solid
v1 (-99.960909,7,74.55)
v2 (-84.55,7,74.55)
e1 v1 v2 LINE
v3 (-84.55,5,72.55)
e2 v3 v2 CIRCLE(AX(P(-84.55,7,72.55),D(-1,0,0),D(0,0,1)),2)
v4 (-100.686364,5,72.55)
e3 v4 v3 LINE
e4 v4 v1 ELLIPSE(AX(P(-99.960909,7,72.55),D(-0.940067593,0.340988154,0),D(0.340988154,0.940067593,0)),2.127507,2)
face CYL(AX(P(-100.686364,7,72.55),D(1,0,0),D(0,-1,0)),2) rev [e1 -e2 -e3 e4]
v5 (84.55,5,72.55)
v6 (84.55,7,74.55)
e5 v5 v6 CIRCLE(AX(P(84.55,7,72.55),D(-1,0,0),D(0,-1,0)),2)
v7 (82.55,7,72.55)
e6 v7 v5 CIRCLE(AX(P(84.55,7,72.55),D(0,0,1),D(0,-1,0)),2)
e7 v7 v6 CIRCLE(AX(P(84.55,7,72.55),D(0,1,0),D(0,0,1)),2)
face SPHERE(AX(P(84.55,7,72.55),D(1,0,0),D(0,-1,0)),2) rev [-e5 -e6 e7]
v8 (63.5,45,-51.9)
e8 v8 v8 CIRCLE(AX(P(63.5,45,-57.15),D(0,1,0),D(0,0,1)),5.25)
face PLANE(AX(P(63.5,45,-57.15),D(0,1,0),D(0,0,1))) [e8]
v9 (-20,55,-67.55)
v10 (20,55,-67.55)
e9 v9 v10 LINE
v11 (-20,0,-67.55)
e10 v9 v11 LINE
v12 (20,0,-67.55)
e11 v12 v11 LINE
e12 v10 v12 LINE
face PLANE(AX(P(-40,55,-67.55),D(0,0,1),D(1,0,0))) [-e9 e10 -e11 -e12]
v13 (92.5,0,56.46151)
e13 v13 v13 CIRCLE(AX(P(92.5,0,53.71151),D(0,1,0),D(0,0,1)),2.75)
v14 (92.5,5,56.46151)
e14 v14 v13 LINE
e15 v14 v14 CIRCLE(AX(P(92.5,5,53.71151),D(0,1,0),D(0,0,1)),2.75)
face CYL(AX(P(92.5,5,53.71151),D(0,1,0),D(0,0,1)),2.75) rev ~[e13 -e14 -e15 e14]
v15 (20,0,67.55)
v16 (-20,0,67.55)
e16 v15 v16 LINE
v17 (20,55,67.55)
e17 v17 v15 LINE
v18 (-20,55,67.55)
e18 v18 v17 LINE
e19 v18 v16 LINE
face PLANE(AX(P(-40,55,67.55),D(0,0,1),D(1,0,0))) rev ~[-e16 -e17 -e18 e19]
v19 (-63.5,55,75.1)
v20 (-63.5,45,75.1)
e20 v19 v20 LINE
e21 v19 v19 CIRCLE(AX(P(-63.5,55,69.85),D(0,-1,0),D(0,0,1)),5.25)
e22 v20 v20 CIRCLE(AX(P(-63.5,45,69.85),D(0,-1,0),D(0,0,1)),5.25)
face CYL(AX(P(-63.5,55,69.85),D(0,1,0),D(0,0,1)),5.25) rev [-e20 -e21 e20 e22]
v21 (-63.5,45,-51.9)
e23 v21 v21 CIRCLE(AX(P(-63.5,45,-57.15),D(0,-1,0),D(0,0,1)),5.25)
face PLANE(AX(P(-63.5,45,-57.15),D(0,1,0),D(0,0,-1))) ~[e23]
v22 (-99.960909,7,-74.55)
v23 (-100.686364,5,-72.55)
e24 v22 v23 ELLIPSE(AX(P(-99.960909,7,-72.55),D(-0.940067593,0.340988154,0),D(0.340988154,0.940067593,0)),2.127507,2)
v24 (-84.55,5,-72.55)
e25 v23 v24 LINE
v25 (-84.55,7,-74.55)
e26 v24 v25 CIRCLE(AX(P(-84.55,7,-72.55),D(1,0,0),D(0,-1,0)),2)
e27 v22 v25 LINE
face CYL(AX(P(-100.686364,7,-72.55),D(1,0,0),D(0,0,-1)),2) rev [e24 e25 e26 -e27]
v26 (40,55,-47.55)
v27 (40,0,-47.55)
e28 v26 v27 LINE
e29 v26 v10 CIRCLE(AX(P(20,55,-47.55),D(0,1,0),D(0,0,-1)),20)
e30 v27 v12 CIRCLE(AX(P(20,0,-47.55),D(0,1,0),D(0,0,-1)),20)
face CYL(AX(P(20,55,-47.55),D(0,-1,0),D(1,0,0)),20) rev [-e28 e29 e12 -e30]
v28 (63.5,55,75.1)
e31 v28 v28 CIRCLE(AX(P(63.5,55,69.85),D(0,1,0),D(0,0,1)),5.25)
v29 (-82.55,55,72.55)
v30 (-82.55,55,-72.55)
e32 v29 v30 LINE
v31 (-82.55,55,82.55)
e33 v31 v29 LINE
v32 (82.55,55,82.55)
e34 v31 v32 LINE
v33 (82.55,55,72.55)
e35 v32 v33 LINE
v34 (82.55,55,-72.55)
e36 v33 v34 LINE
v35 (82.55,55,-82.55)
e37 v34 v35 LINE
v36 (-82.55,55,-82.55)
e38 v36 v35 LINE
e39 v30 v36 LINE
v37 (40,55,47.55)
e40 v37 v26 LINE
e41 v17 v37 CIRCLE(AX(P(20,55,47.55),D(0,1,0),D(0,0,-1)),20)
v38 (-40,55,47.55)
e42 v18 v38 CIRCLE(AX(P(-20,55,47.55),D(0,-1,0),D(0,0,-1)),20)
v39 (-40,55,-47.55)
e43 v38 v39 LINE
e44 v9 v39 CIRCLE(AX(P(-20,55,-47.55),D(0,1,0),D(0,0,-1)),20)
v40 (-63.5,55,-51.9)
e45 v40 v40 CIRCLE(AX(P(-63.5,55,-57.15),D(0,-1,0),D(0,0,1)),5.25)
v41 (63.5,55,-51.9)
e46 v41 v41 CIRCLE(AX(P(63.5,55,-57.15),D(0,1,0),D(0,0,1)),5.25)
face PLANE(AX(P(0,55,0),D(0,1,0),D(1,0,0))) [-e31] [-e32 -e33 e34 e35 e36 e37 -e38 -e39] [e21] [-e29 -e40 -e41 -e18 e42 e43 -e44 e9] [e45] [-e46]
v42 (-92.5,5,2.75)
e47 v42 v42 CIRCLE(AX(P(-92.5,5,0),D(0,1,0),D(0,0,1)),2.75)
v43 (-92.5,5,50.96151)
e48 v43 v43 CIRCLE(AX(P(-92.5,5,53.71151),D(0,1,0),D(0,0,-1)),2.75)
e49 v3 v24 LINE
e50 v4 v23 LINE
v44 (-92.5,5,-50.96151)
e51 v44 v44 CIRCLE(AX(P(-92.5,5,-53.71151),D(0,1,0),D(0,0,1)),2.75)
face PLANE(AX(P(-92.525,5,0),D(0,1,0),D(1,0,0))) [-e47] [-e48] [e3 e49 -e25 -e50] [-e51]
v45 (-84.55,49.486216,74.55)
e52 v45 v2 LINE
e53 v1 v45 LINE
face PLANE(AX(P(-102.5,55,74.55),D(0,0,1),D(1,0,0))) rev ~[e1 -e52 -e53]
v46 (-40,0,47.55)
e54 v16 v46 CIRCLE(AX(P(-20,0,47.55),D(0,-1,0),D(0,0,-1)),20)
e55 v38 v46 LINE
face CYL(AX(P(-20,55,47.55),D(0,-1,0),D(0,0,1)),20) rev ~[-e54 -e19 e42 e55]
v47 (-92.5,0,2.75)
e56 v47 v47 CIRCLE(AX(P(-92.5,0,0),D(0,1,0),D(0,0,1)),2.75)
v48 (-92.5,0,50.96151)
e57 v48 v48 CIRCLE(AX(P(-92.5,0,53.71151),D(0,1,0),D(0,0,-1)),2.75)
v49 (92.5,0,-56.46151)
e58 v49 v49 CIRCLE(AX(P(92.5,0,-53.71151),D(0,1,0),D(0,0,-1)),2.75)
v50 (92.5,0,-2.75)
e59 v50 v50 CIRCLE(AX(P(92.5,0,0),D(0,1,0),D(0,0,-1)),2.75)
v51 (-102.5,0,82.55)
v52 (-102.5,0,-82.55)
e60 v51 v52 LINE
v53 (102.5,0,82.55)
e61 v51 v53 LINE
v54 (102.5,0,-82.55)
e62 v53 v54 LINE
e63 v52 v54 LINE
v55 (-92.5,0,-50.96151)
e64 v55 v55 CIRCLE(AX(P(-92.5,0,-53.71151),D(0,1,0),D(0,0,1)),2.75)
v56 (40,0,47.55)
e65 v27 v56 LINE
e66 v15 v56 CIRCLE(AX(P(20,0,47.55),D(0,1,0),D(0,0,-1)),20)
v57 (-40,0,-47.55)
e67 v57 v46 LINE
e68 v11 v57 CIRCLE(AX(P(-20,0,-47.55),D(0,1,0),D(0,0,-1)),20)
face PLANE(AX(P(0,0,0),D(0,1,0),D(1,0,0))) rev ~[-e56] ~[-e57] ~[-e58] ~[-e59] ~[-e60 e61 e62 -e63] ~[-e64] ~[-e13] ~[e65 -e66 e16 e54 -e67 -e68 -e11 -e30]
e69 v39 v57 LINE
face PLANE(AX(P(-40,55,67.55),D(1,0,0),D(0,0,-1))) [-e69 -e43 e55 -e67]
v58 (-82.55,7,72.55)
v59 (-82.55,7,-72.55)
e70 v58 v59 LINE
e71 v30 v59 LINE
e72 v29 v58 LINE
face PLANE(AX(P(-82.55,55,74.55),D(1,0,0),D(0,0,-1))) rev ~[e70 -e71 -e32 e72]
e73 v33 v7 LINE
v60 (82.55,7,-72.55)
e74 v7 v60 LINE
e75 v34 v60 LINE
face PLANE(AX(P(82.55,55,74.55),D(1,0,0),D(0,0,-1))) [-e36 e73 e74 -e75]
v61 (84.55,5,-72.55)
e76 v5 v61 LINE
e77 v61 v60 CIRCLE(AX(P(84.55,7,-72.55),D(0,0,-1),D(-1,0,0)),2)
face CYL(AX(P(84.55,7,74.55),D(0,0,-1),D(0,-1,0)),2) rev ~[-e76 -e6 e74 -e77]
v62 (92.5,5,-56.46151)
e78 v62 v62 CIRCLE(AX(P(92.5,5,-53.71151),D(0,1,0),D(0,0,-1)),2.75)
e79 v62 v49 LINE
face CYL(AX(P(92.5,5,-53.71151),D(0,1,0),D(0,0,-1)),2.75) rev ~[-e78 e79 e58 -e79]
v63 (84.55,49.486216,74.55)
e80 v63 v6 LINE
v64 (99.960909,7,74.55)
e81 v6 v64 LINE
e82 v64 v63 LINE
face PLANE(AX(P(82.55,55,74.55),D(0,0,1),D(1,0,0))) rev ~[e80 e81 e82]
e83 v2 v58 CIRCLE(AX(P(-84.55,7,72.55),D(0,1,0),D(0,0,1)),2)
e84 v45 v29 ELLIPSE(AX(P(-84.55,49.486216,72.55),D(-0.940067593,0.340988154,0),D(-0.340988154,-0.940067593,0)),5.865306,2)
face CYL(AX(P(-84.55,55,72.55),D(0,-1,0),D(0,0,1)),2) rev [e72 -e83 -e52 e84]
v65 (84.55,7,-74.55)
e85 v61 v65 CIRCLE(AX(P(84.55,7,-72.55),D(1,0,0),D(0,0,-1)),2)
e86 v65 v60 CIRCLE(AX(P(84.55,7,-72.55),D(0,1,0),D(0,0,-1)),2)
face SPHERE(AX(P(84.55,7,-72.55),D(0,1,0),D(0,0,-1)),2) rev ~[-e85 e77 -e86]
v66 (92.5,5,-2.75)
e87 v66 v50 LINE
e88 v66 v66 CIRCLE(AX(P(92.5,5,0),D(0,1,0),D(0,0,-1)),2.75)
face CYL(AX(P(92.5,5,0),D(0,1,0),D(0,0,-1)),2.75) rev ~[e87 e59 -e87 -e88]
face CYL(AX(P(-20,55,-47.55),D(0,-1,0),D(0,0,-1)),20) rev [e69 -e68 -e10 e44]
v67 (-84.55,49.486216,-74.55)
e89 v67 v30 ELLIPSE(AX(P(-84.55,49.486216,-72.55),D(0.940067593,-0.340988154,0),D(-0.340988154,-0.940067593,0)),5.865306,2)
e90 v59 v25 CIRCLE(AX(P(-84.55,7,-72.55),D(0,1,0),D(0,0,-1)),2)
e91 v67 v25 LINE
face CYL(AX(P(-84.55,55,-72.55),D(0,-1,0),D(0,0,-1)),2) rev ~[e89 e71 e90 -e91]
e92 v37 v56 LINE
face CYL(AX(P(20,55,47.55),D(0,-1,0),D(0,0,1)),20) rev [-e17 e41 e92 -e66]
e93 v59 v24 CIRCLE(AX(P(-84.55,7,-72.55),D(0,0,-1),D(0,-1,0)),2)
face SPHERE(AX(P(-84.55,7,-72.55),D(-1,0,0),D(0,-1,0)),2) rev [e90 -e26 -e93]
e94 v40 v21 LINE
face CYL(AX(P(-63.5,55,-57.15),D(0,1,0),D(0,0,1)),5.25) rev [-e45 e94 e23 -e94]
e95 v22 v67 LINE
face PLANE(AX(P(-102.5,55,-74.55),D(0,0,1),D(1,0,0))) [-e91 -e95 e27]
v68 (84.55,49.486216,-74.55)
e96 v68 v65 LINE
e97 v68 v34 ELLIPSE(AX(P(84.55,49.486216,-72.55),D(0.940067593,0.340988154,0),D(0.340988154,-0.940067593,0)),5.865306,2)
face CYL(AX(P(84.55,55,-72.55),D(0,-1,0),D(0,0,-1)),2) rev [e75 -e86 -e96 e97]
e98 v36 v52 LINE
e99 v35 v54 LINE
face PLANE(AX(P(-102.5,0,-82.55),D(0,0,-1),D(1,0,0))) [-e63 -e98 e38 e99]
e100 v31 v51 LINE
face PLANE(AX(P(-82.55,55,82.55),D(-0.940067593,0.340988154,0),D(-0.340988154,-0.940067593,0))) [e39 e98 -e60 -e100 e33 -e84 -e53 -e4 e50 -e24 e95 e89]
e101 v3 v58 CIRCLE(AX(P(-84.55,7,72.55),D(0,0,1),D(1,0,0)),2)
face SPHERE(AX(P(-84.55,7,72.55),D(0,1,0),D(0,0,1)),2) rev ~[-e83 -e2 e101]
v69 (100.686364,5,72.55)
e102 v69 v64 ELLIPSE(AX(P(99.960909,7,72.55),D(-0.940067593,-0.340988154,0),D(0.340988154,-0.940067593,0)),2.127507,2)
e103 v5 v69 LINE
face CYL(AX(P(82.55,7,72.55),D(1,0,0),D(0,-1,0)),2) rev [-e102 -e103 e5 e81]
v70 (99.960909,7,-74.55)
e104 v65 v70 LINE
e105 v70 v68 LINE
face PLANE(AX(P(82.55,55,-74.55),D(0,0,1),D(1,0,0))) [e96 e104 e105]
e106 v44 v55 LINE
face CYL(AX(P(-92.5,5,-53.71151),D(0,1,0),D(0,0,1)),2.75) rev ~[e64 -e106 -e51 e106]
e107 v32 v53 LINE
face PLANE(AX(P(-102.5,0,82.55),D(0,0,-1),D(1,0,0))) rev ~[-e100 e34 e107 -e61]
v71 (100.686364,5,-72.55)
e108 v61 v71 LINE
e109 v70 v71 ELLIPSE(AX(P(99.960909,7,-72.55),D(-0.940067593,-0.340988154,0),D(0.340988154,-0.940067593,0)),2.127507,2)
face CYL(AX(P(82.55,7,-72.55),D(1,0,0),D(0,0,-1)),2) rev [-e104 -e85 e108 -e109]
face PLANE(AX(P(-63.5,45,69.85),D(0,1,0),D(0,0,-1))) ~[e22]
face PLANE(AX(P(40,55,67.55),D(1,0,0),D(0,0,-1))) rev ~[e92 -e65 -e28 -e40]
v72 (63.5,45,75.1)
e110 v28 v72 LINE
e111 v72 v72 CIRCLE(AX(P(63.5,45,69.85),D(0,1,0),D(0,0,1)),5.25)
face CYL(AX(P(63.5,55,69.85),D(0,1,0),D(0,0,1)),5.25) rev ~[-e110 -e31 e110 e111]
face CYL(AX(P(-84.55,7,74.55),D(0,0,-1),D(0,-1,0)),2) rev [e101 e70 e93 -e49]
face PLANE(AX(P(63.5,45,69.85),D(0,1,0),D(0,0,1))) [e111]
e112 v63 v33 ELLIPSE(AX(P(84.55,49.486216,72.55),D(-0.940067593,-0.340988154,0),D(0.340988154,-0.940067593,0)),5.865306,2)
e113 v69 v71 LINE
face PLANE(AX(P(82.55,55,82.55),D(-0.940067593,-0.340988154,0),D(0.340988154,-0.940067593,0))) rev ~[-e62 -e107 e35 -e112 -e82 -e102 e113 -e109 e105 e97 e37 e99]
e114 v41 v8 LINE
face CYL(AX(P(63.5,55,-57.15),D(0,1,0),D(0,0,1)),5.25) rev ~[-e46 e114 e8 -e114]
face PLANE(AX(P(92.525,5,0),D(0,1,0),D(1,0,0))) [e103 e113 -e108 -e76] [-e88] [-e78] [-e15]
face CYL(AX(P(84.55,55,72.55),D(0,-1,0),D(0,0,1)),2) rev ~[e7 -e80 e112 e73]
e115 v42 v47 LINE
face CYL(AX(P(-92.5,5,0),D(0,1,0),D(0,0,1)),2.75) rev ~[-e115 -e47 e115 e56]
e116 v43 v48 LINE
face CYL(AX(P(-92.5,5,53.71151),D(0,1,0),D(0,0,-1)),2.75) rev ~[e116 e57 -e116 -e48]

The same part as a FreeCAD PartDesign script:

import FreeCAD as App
import Part
import Sketcher
from FreeCAD import Vector
Q = App.Units.Quantity


def edges_at(feature, points):
    """Names of the edges that pass closest to the given points."""
    edges = feature.Shape.Edges
    near = lambda p: min(range(len(edges)), key=lambda i: edges[i].distToShape(Part.Vertex(*p))[0])
    return sorted({f"Edge{near(p) + 1}" for p in points})


def add_polygon(sketch, points):
    """Adds a closed chain of lines whose ends are joined by coincident constraints."""
    first, n = sketch.GeometryCount, len(points)
    for a, b in zip(points, points[1:] + points[:1]):
        sketch.addGeometry(Part.LineSegment(App.Vector(*a, 0), App.Vector(*b, 0)), False)
    for i in range(n):
        sketch.addConstraint(Sketcher.Constraint("Coincident", first + i, 2, first + (i + 1) % n, 1))

doc = App.newDocument("Part")
body = doc.addObject("PartDesign::Body", "Body")

# Sketch on XZ plane
sketch1 = body.newObject("Sketcher::SketchObject", "Sketch")
sketch1.AttachmentSupport = (doc.getObject("XZ_Plane"), [""])
sketch1.MapMode = "FlatFace"
add_polygon(sketch1, [(-102, -83), (-102, 83), (102, 83), (102, -83)])  # lines 0-3
sketch1.addConstraint([
    Sketcher.Constraint("Vertical", 0),
    Sketcher.Constraint("Horizontal", 1),
    Sketcher.Constraint("Vertical", 2),
    Sketcher.Constraint("Horizontal", 3),
    Sketcher.Constraint("Symmetric", 0, 2, 2, 2, -1, 1),
    Sketcher.Constraint("DistanceX", 1, 1, 1, 2, Q("205 mm")),
    Sketcher.Constraint("DistanceY", 0, 1, 0, 2, Q("165.1 mm")),
])
pad1 = body.newObject("PartDesign::Pad", "Pad")
pad1.Profile = sketch1
pad1.Length = 55
pad1.Reversed = True

# Sketch on XY plane
sketch2 = body.newObject("Sketcher::SketchObject", "Sketch001")
sketch2.AttachmentSupport = (doc.getObject("XY_Plane"), [""])
sketch2.MapMode = "FlatFace"
sketch2.AttachmentOffset = App.Placement(Vector(0, 0, 82.55), App.Rotation())
add_polygon(sketch2, [(83, 55), (102, 0), (102, 55)])  # lines 0-2
sketch2.addConstraint([
    Sketcher.Constraint("Vertical", 1),
    Sketcher.Constraint("Horizontal", 2),
    Sketcher.Constraint("PointOnObject", 0, 2, -1),
    Sketcher.Constraint("DistanceY", 1, 1, 1, 2, Q("55 mm")),
    Sketcher.Constraint("DistanceX", 2, 2, 2, 1, Q("19.95 mm")),
    Sketcher.Constraint("DistanceX", -1, 1, 0, 2, Q("102.5 mm")),
])
pocket1 = body.newObject("PartDesign::Pocket", "Pocket")
pocket1.Profile = sketch2
pocket1.Type = "UpToFirst"

# Sketch on XY plane
sketch3 = body.newObject("Sketcher::SketchObject", "Sketch002")
sketch3.AttachmentSupport = (doc.getObject("XY_Plane"), [""])
sketch3.MapMode = "FlatFace"
sketch3.AttachmentOffset = App.Placement(Vector(0, 0, 82.55), App.Rotation())
add_polygon(sketch3, [(-102, 0), (-83, 55), (-102, 55)])  # lines 0-2
sketch3.addConstraint([
    Sketcher.Constraint("Horizontal", 1),
    Sketcher.Constraint("Vertical", 2),
    Sketcher.Constraint("PointOnObject", 2, 2, -1),
    Sketcher.Constraint("DistanceY", 2, 2, 2, 1, Q("55 mm")),
    Sketcher.Constraint("DistanceX", 1, 2, 1, 1, Q("19.95 mm")),
    Sketcher.Constraint("DistanceX", 1, 2, -1, 1, Q("102.5 mm")),
])
pocket2 = body.newObject("PartDesign::Pocket", "Pocket001")
pocket2.Profile = sketch3
pocket2.Type = "UpToFirst"

# Sketch on XZ plane
sketch4 = body.newObject("Sketcher::SketchObject", "Sketch003")
sketch4.AttachmentSupport = (doc.getObject("XZ_Plane"), [""])
sketch4.MapMode = "FlatFace"
sketch4.AttachmentOffset = App.Placement(Vector(0, 0, -55), App.Rotation())
add_polygon(sketch4, [(-102, -75), (-102, 75), (-83, 75), (-83, -75)])  # lines 0-3
add_polygon(sketch4, [(83, -75), (83, 75), (102, 75), (102, -75)])  # lines 4-7
sketch4.addConstraint([
    Sketcher.Constraint("Vertical", 0),
    Sketcher.Constraint("Horizontal", 1),
    Sketcher.Constraint("Vertical", 2),
    Sketcher.Constraint("Horizontal", 3),
    Sketcher.Constraint("Vertical", 4),
    Sketcher.Constraint("Horizontal", 5),
    Sketcher.Constraint("Vertical", 6),
    Sketcher.Constraint("Horizontal", 7),
    Sketcher.Constraint("Symmetric", 2, 2, 4, 2, -1, 1),
    Sketcher.Constraint("Symmetric", 0, 2, 6, 2, -1, 1),
    Sketcher.Constraint("Horizontal", 1, 2, 4, 2),
    Sketcher.Constraint("DistanceY", 0, 1, 0, 2, Q("149.1 mm")),
    Sketcher.Constraint("DistanceX", 0, 2, 5, 2, Q("205 mm")),
    Sketcher.Constraint("DistanceX", 1, 1, 1, 2, Q("19.95 mm")),
])
pocket3 = body.newObject("PartDesign::Pocket", "Pocket002")
pocket3.Profile = sketch4
pocket3.Length = 50
pocket3.Reversed = True

# Sketch on XZ plane
sketch5 = body.newObject("Sketcher::SketchObject", "Sketch004")
sketch5.AttachmentSupport = (doc.getObject("XZ_Plane"), [""])
sketch5.MapMode = "FlatFace"
sketch5.AttachmentOffset = App.Placement(Vector(0, 0, -5), App.Rotation())
sketch5.addGeometry(Part.Circle(Vector(-92.5, -53.7, 0), Vector(0, 0, 1), 2.8), False)
sketch5.addConstraint([
    Sketcher.Constraint("Diameter", 0, Q("5.5 mm")),
    Sketcher.Constraint("DistanceX", 0, 3, -1, 1, Q("92.5 mm")),
    Sketcher.Constraint("DistanceY", 0, 3, -1, 1, Q("53.71151 mm")),
])
pocket4 = body.newObject("PartDesign::Pocket", "Pocket003")
pocket4.Profile = sketch5
pocket4.Type = "UpToFirst"
pocket4.Reversed = True

# Sketch on XZ plane
sketch6 = body.newObject("Sketcher::SketchObject", "Sketch005")
sketch6.AttachmentSupport = (doc.getObject("XZ_Plane"), [""])
sketch6.MapMode = "FlatFace"
sketch6.AttachmentOffset = App.Placement(Vector(0, 0, -5), App.Rotation())
sketch6.addGeometry(Part.Circle(Vector(-92.5, 0, 0), Vector(0, 0, 1), 2.8), False)
sketch6.addConstraint([
    Sketcher.Constraint("PointOnObject", 0, 3, -1),
    Sketcher.Constraint("Diameter", 0, Q("5.5 mm")),
    Sketcher.Constraint("DistanceX", 0, 3, -1, 1, Q("92.5 mm")),
])
pocket5 = body.newObject("PartDesign::Pocket", "Pocket004")
pocket5.Profile = sketch6
pocket5.Type = "UpToFirst"
pocket5.Reversed = True

# Sketch on XZ plane
sketch7 = body.newObject("Sketcher::SketchObject", "Sketch006")
sketch7.AttachmentSupport = (doc.getObject("XZ_Plane"), [""])
sketch7.MapMode = "FlatFace"
sketch7.AttachmentOffset = App.Placement(Vector(0, 0, -5), App.Rotation())
sketch7.addGeometry(Part.Circle(Vector(-92.5, 53.7, 0), Vector(0, 0, 1), 2.8), False)
sketch7.addConstraint([
    Sketcher.Constraint("Diameter", 0, Q("5.5 mm")),
    Sketcher.Constraint("DistanceX", 0, 3, -1, 1, Q("92.5 mm")),
    Sketcher.Constraint("DistanceY", -1, 1, 0, 3, Q("53.71151 mm")),
])
pocket6 = body.newObject("PartDesign::Pocket", "Pocket005")
pocket6.Profile = sketch7
pocket6.Type = "UpToFirst"
pocket6.Reversed = True

# Sketch on XZ plane
sketch8 = body.newObject("Sketcher::SketchObject", "Sketch007")
sketch8.AttachmentSupport = (doc.getObject("XZ_Plane"), [""])
sketch8.MapMode = "FlatFace"
sketch8.AttachmentOffset = App.Placement(Vector(0, 0, -5), App.Rotation())
sketch8.addGeometry(Part.Circle(Vector(92.5, 53.7, 0), Vector(0, 0, 1), 2.8), False)
sketch8.addConstraint([
    Sketcher.Constraint("Diameter", 0, Q("5.5 mm")),
    Sketcher.Constraint("DistanceX", -1, 1, 0, 3, Q("92.5 mm")),
    Sketcher.Constraint("DistanceY", -1, 1, 0, 3, Q("53.71151 mm")),
])
pocket7 = body.newObject("PartDesign::Pocket", "Pocket006")
pocket7.Profile = sketch8
pocket7.Type = "UpToFirst"
pocket7.Reversed = True

# Sketch on XZ plane
sketch9 = body.newObject("Sketcher::SketchObject", "Sketch008")
sketch9.AttachmentSupport = (doc.getObject("XZ_Plane"), [""])
sketch9.MapMode = "FlatFace"
sketch9.AttachmentOffset = App.Placement(Vector(0, 0, -5), App.Rotation())
sketch9.addGeometry(Part.Circle(Vector(92.5, 0, 0), Vector(0, 0, 1), 2.8), False)
sketch9.addConstraint([
    Sketcher.Constraint("PointOnObject", 0, 3, -1),
    Sketcher.Constraint("Diameter", 0, Q("5.5 mm")),
    Sketcher.Constraint("DistanceX", -1, 1, 0, 3, Q("92.5 mm")),
])
pocket8 = body.newObject("PartDesign::Pocket", "Pocket007")
pocket8.Profile = sketch9
pocket8.Type = "UpToFirst"
pocket8.Reversed = True

# Sketch on XZ plane
sketch10 = body.newObject("Sketcher::SketchObject", "Sketch009")
sketch10.AttachmentSupport = (doc.getObject("XZ_Plane"), [""])
sketch10.MapMode = "FlatFace"
sketch10.AttachmentOffset = App.Placement(Vector(0, 0, -5), App.Rotation())
sketch10.addGeometry(Part.Circle(Vector(92.5, -53.7, 0), Vector(0, 0, 1), 2.8), False)
sketch10.addConstraint([
    Sketcher.Constraint("Diameter", 0, Q("5.5 mm")),
    Sketcher.Constraint("DistanceX", -1, 1, 0, 3, Q("92.5 mm")),
    Sketcher.Constraint("DistanceY", 0, 3, -1, 1, Q("53.71151 mm")),
])
pocket9 = body.newObject("PartDesign::Pocket", "Pocket008")
pocket9.Profile = sketch10
pocket9.Type = "UpToFirst"
pocket9.Reversed = True
doc.recompute()

fillet = body.newObject("PartDesign::Fillet", "Fillet")
fillet.Base = (pocket9, edges_at(pocket9, [
    (-91.618, 5, -74.55),
    (-82.55, 30, 74.55),
    (-91.618, 5, 74.55),
    (-82.55, 5, 0),
    (-82.55, 30, -74.55),
    (91.618, 5, 74.55),
    (82.55, 30, -74.55),
    (91.618, 5, -74.55),
    (82.55, 5, 0),
    (82.55, 30, 74.55),
]))
fillet.Radius = 2

# Sketch on XZ plane
sketch11 = body.newObject("Sketcher::SketchObject", "Sketch010")
sketch11.AttachmentSupport = (doc.getObject("XZ_Plane"), [""])
sketch11.MapMode = "FlatFace"
sketch11.AttachmentOffset = App.Placement(Vector(0, 0, -55), App.Rotation())
sketch11.addGeometry([
    Part.Circle(Vector(64, 70, 0), Vector(0, 0, 1), 5),
    Part.Circle(Vector(64, -57, 0), Vector(0, 0, 1), 5),
], False)
sketch11.addConstraint([
    Sketcher.Constraint("Equal", 0, 1),
    Sketcher.Constraint("Vertical", 0, 3, 1, 3),
    Sketcher.Constraint("Diameter", 0, Q("10.5 mm")),
    Sketcher.Constraint("DistanceY", 1, 3, 0, 3, Q("127 mm")),
    Sketcher.Constraint("DistanceX", -1, 1, 0, 3, Q("63.5 mm")),
    Sketcher.Constraint("DistanceY", -1, 1, 0, 3, Q("69.85 mm")),
])
pocket10 = body.newObject("PartDesign::Pocket", "Pocket009")
pocket10.Profile = sketch11
pocket10.Length = 10
pocket10.Reversed = True
doc.recompute()

mirrored = body.newObject("PartDesign::Mirrored", "Mirrored")
mirrored.Originals = [pocket10]
mirrored.MirrorPlane = (doc.getObject("YZ_Plane"), [""])
body.Tip = mirrored

# Sketch on XZ plane
sketch12 = body.newObject("Sketcher::SketchObject", "Sketch011")
sketch12.AttachmentSupport = (doc.getObject("XZ_Plane"), [""])
sketch12.MapMode = "FlatFace"
sketch12.AttachmentOffset = App.Placement(Vector(0, 0, -55), App.Rotation())
add_polygon(sketch12, [(-40, -68), (-40, 68), (40, 68), (40, -68)])  # lines 0-3
sketch12.addConstraint([
    Sketcher.Constraint("Vertical", 0),
    Sketcher.Constraint("Horizontal", 1),
    Sketcher.Constraint("Vertical", 2),
    Sketcher.Constraint("Horizontal", 3),
    Sketcher.Constraint("Symmetric", 0, 2, 2, 2, -1, 1),
    Sketcher.Constraint("DistanceX", 1, 1, 1, 2, Q("80 mm")),
    Sketcher.Constraint("DistanceY", 0, 1, 0, 2, Q("135.1 mm")),
])
pocket11 = body.newObject("PartDesign::Pocket", "Pocket010")
pocket11.Profile = sketch12
pocket11.Type = "UpToFirst"
pocket11.Reversed = True
doc.recompute()

fillet2 = body.newObject("PartDesign::Fillet", "Fillet001")
fillet2.Base = (pocket11, edges_at(pocket11, [
    (40, 27.5, -67.55),
    (40, 27.5, 67.55),
    (-40, 27.5, 67.55),
    (-40, 27.5, -67.55),
]))
fillet2.Radius = 20

doc.recompute()
